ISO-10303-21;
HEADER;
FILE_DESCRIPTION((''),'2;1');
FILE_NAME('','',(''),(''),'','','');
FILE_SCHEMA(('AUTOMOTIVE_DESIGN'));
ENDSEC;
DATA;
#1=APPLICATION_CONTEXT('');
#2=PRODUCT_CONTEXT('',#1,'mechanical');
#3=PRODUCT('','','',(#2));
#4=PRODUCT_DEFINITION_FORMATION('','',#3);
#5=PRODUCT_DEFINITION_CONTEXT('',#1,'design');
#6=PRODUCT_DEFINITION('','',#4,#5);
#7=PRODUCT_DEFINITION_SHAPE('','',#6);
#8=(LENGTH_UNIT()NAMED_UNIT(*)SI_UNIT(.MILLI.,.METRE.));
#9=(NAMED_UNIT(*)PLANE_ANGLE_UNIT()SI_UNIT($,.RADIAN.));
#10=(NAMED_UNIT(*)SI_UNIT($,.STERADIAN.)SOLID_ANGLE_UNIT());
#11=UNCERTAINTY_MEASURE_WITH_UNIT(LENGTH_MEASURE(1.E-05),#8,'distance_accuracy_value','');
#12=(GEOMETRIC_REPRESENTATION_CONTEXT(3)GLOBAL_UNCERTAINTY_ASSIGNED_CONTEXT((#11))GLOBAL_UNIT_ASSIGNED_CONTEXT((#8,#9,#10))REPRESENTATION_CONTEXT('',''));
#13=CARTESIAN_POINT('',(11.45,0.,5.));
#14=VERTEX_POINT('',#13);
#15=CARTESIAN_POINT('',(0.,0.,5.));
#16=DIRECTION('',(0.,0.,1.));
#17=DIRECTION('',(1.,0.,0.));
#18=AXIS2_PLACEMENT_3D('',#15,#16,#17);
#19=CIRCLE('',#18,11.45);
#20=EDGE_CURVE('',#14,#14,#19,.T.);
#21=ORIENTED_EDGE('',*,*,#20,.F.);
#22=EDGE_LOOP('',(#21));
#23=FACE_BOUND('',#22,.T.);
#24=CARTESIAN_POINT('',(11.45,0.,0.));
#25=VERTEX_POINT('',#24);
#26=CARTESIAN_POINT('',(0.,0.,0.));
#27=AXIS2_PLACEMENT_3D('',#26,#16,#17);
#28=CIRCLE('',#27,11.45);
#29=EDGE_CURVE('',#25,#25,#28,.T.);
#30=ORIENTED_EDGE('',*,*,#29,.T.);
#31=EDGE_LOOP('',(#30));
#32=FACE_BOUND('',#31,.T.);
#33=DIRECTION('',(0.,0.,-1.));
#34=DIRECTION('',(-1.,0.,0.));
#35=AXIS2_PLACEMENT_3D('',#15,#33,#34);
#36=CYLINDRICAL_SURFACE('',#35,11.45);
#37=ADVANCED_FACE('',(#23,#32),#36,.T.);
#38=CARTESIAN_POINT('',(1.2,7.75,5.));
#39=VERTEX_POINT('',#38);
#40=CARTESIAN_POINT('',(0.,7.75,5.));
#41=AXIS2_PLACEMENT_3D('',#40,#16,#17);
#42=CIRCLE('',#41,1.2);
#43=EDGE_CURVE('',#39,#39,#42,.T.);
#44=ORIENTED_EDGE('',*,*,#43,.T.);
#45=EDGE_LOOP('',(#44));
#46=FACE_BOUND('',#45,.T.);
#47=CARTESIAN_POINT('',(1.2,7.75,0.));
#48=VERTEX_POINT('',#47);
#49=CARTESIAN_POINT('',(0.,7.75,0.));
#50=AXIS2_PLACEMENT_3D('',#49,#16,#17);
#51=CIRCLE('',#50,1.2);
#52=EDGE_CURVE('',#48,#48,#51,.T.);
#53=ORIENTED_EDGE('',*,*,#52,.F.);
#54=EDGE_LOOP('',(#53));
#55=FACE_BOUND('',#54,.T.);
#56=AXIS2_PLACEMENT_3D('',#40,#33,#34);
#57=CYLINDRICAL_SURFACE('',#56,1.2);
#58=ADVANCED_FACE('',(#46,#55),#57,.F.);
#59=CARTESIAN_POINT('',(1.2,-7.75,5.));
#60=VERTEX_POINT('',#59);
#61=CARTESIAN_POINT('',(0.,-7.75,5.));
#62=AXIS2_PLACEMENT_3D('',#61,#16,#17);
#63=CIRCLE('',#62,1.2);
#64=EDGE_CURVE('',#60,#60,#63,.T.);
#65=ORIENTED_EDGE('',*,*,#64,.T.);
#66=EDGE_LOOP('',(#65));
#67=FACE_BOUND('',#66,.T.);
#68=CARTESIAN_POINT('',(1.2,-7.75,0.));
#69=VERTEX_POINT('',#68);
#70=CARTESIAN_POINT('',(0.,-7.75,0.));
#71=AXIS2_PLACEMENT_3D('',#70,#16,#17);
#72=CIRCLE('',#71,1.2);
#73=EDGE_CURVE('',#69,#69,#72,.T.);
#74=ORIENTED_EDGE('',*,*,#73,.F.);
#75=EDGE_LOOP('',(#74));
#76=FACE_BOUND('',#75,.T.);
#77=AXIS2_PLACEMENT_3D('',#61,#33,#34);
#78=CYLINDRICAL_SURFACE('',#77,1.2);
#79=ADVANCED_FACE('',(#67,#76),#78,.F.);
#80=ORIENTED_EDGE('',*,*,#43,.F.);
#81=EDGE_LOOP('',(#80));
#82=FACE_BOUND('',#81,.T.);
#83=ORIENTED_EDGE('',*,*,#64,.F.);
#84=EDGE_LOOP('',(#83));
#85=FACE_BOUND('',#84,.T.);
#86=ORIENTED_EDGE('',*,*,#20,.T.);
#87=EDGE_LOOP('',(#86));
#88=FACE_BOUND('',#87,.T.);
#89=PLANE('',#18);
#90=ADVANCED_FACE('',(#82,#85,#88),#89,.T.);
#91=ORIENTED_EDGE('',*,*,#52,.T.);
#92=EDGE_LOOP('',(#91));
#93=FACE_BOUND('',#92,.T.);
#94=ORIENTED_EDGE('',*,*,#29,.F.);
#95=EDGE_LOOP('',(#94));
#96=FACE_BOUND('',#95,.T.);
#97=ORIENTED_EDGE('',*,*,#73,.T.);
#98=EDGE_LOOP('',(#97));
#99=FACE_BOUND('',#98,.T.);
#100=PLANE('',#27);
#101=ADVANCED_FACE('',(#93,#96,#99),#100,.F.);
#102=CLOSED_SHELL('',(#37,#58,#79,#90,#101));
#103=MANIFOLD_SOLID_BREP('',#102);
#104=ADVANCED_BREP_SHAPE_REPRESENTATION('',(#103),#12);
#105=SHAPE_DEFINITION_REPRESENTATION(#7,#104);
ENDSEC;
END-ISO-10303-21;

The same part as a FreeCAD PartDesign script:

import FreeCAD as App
import Part
import Sketcher
from FreeCAD import Vector
Q = App.Units.Quantity

doc = App.newDocument("Part")
body = doc.addObject("PartDesign::Body", "Body")

sketch1 = doc.addObject("Sketcher::SketchObject", "Sketch")
body.addObject(sketch1)
sketch1.AttachmentSupport = (doc.XY_Plane, [""])
sketch1.MapMode = "FlatFace"
sketch1.addGeometry([
    Part.Circle(Vector(0, 0, 0), Vector(0, 0, 1), 11.4),
    Part.Circle(Vector(0, -7.8, 0), Vector(0, 0, 1), 1.2),
    Part.Circle(Vector(0, 7.8, 0), Vector(0, 0, 1), 1.2),
], False)
sketch1.addConstraint([
    Sketcher.Constraint("Coincident", 0, 3, -1, 1),
    Sketcher.Constraint("Equal", 1, 2),
    Sketcher.Constraint("Symmetric", 1, 3, 2, 3, -1, 1),
    Sketcher.Constraint("PointOnObject", 1, 3, -2),
    Sketcher.Constraint("Diameter", 0, Q("22.9 mm")),
    Sketcher.Constraint("Diameter", 1, Q("2.4 mm")),
    Sketcher.Constraint("DistanceY", 1, 3, 2, 3, Q("15.5 mm")),
])
pad1 = doc.addObject("PartDesign::Pad", "Pad")
body.addObject(pad1)
pad1.Profile = sketch1
pad1.Length = 5

doc.recompute()
